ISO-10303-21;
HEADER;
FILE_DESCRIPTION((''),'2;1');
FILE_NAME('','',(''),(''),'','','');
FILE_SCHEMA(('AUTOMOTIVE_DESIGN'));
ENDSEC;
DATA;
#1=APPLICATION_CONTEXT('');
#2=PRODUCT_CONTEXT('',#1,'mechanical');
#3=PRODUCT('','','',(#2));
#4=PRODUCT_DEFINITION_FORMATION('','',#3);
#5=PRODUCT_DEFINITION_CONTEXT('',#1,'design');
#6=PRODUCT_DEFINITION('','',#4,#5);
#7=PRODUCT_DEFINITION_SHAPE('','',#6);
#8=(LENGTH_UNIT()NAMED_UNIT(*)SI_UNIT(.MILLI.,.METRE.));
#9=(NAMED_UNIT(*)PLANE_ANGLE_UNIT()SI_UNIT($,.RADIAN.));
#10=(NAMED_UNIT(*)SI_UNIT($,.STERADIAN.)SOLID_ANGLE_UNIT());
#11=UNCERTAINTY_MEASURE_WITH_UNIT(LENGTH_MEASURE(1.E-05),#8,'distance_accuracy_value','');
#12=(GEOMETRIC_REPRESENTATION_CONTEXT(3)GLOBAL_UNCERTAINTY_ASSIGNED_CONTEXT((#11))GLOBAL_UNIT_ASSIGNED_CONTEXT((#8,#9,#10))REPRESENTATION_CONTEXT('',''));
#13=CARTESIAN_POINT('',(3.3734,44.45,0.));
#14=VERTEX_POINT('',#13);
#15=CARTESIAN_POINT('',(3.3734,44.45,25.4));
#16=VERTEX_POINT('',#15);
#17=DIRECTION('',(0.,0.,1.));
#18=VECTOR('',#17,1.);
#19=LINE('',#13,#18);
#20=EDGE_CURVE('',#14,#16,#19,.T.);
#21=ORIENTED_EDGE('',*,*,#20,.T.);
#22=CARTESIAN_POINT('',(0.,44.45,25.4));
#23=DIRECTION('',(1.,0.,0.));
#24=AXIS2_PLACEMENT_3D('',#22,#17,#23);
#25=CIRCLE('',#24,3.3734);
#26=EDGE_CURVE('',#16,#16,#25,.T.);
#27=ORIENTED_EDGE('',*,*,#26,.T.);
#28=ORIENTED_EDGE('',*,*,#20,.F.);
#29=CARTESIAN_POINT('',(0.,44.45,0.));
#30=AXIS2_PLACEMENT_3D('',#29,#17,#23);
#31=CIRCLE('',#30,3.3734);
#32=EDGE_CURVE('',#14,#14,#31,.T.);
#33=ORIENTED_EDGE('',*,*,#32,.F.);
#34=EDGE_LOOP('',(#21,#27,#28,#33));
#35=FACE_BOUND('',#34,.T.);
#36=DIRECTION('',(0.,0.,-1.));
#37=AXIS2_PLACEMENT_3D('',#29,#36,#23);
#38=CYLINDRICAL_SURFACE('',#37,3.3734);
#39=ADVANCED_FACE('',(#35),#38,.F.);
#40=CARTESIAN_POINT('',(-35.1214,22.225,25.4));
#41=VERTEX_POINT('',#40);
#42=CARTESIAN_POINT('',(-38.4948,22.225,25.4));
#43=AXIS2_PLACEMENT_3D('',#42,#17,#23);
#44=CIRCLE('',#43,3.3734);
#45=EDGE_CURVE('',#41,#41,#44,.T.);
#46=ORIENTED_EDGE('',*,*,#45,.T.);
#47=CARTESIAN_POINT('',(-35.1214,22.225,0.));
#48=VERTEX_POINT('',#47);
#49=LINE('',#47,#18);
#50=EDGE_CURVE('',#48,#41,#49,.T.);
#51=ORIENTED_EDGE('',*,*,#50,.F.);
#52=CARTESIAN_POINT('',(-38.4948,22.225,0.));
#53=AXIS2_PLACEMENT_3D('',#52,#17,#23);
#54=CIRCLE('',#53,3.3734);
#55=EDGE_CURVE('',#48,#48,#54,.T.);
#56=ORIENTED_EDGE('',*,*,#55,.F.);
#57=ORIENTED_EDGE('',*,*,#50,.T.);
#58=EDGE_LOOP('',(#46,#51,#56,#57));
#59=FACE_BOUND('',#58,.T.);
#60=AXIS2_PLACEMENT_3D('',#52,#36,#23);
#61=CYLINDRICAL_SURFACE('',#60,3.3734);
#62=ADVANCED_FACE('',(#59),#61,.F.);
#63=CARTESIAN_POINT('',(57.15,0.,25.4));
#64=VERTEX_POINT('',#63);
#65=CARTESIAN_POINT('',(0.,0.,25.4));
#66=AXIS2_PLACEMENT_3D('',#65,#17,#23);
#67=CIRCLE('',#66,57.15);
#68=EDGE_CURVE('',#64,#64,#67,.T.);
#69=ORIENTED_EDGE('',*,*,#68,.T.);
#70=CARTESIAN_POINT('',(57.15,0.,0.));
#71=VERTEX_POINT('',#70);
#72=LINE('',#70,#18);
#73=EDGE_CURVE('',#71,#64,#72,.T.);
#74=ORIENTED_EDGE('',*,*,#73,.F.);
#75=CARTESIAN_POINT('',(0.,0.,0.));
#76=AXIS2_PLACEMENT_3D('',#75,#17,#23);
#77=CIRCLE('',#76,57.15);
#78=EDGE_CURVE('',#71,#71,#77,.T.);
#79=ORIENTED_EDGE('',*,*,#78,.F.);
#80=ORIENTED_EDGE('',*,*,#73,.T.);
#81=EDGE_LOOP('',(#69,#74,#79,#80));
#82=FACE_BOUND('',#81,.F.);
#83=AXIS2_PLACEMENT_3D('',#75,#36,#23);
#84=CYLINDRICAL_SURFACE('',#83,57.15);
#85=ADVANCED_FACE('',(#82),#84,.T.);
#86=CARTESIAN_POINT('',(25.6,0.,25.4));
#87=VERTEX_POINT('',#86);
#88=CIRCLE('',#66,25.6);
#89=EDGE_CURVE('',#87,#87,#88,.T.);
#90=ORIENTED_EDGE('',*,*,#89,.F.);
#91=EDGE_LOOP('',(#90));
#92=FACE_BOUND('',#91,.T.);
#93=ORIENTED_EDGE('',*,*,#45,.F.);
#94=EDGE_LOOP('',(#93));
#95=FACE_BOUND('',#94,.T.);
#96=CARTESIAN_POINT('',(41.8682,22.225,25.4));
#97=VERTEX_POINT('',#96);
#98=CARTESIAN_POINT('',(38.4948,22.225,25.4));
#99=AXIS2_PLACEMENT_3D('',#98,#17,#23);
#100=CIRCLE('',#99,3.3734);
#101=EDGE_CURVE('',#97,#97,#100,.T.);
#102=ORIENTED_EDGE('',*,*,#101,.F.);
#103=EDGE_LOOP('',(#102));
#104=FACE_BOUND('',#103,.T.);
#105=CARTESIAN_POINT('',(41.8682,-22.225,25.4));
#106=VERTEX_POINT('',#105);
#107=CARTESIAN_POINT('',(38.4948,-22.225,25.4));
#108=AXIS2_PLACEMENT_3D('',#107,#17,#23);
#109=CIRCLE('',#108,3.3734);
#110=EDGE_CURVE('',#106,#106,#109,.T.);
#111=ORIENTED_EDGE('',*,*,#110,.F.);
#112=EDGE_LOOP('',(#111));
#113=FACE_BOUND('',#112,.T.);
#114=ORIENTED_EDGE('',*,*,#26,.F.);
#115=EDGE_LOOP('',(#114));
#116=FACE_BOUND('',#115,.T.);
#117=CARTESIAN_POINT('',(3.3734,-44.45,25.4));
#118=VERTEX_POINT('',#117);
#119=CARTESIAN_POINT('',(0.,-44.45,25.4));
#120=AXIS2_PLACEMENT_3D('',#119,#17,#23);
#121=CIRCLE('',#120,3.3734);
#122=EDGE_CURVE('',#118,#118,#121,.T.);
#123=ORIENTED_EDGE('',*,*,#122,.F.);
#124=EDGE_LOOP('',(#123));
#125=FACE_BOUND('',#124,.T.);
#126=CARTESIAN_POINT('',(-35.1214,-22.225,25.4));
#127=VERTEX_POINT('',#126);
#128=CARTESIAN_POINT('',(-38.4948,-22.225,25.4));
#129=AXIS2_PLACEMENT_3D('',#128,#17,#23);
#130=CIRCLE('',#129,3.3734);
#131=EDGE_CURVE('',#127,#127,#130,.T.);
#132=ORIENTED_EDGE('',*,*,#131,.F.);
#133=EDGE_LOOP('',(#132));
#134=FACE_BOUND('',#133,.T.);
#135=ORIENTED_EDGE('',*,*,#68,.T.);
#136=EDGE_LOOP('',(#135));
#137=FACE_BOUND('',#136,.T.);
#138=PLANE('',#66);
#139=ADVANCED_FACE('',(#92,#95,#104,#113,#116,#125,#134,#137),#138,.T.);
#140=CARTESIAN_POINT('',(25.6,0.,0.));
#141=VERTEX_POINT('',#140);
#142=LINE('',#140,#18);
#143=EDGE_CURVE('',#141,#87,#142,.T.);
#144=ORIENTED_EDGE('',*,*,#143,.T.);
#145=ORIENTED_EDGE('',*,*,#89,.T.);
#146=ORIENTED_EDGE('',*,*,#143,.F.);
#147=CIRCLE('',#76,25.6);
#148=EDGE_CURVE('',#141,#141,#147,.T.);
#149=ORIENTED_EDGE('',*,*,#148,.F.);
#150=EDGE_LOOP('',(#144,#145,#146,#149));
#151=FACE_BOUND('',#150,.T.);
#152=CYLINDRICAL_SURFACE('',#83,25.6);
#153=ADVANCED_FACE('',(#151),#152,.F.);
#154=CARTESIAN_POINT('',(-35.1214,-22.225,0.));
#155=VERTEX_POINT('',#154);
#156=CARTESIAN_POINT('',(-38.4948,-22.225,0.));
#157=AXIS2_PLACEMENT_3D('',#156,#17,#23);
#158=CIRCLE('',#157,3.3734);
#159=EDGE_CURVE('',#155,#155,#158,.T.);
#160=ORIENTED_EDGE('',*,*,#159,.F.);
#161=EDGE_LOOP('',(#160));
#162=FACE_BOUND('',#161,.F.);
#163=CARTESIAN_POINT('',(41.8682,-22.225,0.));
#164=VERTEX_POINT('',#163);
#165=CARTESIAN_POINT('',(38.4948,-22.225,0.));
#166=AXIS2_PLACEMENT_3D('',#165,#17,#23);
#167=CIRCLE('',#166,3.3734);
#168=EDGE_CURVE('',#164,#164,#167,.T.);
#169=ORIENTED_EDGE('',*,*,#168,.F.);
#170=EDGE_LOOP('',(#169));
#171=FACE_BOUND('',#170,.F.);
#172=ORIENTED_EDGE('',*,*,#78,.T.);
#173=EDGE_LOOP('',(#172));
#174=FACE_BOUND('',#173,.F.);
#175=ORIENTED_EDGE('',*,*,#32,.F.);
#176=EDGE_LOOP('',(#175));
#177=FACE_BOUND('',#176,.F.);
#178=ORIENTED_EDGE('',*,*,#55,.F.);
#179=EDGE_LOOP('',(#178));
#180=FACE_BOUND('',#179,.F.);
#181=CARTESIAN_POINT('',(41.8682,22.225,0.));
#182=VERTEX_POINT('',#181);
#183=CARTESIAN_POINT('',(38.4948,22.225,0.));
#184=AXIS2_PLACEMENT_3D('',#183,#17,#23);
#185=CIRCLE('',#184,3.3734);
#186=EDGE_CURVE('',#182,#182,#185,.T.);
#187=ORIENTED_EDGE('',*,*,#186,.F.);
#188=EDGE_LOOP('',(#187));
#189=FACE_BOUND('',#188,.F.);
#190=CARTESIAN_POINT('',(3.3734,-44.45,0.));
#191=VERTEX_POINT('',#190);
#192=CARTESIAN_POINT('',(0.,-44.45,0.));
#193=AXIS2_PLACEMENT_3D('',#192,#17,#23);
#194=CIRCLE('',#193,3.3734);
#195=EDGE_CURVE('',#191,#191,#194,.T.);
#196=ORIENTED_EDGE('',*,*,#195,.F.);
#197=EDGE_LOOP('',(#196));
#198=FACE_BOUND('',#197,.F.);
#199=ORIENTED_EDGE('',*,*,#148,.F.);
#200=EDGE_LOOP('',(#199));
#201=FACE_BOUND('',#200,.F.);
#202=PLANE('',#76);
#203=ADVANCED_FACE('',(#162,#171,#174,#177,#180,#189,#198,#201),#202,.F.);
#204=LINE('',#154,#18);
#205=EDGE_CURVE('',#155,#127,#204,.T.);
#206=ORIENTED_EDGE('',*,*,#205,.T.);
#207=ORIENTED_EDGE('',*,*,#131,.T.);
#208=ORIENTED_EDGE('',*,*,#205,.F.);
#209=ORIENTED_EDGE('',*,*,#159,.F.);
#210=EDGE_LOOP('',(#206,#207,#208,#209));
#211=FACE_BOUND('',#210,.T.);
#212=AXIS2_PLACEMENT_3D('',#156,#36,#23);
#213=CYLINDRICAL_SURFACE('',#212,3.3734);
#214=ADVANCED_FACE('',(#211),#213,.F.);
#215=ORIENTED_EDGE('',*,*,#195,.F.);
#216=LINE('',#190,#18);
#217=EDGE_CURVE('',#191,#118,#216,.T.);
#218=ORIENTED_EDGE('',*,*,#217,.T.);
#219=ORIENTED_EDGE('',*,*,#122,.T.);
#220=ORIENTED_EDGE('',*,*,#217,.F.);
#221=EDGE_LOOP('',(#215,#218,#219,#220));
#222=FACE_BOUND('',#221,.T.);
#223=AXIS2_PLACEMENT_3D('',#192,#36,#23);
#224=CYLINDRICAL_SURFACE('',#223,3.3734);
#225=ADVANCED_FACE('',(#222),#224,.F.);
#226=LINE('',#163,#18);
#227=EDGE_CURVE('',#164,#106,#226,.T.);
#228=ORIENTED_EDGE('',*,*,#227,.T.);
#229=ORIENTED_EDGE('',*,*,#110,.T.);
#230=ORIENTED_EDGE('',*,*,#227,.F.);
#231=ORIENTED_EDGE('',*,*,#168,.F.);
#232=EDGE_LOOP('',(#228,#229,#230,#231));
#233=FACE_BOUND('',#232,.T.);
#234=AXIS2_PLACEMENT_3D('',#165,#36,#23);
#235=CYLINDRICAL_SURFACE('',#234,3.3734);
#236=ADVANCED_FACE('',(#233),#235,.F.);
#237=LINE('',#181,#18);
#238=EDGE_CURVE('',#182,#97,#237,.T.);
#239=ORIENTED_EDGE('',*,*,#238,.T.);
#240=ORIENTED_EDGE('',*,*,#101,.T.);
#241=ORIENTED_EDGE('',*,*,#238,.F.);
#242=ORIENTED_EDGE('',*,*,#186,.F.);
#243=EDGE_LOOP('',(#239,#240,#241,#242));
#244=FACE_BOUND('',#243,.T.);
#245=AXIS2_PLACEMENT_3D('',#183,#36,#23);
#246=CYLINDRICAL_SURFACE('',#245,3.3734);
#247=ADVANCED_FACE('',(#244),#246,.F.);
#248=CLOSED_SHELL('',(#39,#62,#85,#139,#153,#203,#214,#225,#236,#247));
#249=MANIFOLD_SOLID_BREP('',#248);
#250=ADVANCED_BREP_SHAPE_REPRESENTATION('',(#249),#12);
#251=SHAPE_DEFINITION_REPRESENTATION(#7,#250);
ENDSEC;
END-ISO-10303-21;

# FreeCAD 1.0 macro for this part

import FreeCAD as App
import Part
import Sketcher

V = App.Vector
Q = App.Units.Quantity

doc = App.newDocument("Part")
body = doc.addObject("PartDesign::Body", "Body")

sketch1 = body.newObject("Sketcher::SketchObject", "Sketch")
sketch1.AttachmentSupport = (doc.getObject("XY_Plane"), [""])
sketch1.MapMode = "FlatFace"
sketch1.addGeometry([
    Part.Circle(V(0, 0, 0), V(0, 0, 1), 57.1),
    Part.Circle(V(-38.5, -22.2, 0), V(0, 0, 1), 3.4),
    Part.Circle(V(0, -44.5, 0), V(0, 0, 1), 3.4),
    Part.Circle(V(38.5, -22.2, 0), V(0, 0, 1), 3.4),
    Part.Circle(V(-38.5, 22.2, 0), V(0, 0, 1), 3.4),
    Part.Circle(V(0, 0, 0), V(0, 0, 1), 25.6),
    Part.Circle(V(38.5, 22.2, 0), V(0, 0, 1), 3.4),
    Part.Circle(V(0, 44.5, 0), V(0, 0, 1), 3.4),
], False)
sketch1.addConstraint([
    Sketcher.Constraint("Coincident", 0, 3, -1, 1),
    Sketcher.Constraint("Coincident", 5, 3, -1, 1),
    Sketcher.Constraint("Equal", 1, 2),
    Sketcher.Constraint("Equal", 2, 3),
    Sketcher.Constraint("Equal", 3, 4),
    Sketcher.Constraint("Equal", 4, 6),
    Sketcher.Constraint("Equal", 6, 7),
    Sketcher.Constraint("Symmetric", 3, 3, 4, 3, -1, 1),
    Sketcher.Constraint("Symmetric", 1, 3, 6, 3, -1, 1),
    Sketcher.Constraint("Symmetric", 2, 3, 7, 3, -1, 1),
    Sketcher.Constraint("Symmetric", 1, 3, 3, 3, -2),
    Sketcher.Constraint("PointOnObject", 2, 3, -2),
    Sketcher.Constraint("Diameter", 0, Q("4.5 in")),
    Sketcher.Constraint("Diameter", 1, Q("0.265622 in")),
    Sketcher.Constraint("Diameter", 5, 51.2),
    Sketcher.Constraint("DistanceY", 2, 3, -1, 1, Q("1.75 in")),
    Sketcher.Constraint("DistanceY", 1, 3, 4, 3, Q("1.75 in")),
    Sketcher.Constraint("DistanceX", 1, 3, -1, 1, 38.4948),
])
pad1 = body.newObject("PartDesign::Pad", "Pad")
pad1.Profile = sketch1
pad1.Length = Q("1 in")

doc.recompute()
